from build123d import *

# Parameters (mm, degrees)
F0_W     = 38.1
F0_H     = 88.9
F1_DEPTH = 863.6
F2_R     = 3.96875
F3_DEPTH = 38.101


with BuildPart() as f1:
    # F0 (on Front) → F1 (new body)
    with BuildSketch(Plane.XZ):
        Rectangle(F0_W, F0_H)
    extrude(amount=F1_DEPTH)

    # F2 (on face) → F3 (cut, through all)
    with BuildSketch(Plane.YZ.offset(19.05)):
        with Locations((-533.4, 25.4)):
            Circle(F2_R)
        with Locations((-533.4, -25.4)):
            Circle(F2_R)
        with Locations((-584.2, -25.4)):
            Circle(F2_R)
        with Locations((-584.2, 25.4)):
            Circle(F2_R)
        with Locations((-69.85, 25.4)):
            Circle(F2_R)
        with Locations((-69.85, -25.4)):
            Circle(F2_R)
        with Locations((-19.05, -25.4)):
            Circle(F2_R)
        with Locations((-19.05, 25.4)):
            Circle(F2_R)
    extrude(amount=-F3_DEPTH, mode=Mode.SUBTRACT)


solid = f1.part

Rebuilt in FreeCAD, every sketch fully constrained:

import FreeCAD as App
import Part
import Sketcher
Q = App.Units.Quantity


def add_polygon(sketch, points):
    """Adds a closed chain of lines whose ends are joined by coincident constraints."""
    first, n = sketch.GeometryCount, len(points)
    for a, b in zip(points, points[1:] + points[:1]):
        sketch.addGeometry(Part.LineSegment(App.Vector(*a, 0), App.Vector(*b, 0)), False)
    for i in range(n):
        sketch.addConstraint(Sketcher.Constraint("Coincident", first + i, 2, first + (i + 1) % n, 1))

doc = App.newDocument("Part")
body = doc.addObject("PartDesign::Body", "Body")

sketch1 = body.newObject("Sketcher::SketchObject", "Sketch")
sketch1.AttachmentSupport = (doc.getObject("XZ_Plane"), [""])
sketch1.MapMode = "FlatFace"
add_polygon(sketch1, [(-19, 44), (-19, -44), (19, -44), (19, 44)])
sketch1.addConstraint([
    Sketcher.Constraint("Vertical", 0),
    Sketcher.Constraint("Horizontal", 1),
    Sketcher.Constraint("Vertical", 2),
    Sketcher.Constraint("Horizontal", 3),
    Sketcher.Constraint("Symmetric", 0, 2, 2, 2, -1, 1),
    Sketcher.Constraint("DistanceX", 1, 1, 1, 2, Q("1.5 in")),
    Sketcher.Constraint("DistanceY", 0, 2, 0, 1, Q("3.5 in")),
])
pad1 = body.newObject("PartDesign::Pad", "Pad")
pad1.Profile = sketch1
pad1.Length = Q("34 in")

sketch2 = body.newObject("Sketcher::SketchObject", "Sketch001")
sketch2.AttachmentSupport = (doc.getObject("YZ_Plane"), [""])
sketch2.MapMode = "FlatFace"
sketch2.AttachmentOffset = App.Placement(App.Vector(0, 0, 0.75 * 25.4), App.Rotation())
sketch2.addGeometry([
    Part.Circle(App.Vector(-533.4, 25.4, 0), App.Vector(0, 0, 1), 4),
    Part.Circle(App.Vector(-533.4, -25.4, 0), App.Vector(0, 0, 1), 4),
    Part.Circle(App.Vector(-584.2, -25.4, 0), App.Vector(0, 0, 1), 4),
    Part.Circle(App.Vector(-584.2, 25.4, 0), App.Vector(0, 0, 1), 4),
    Part.Circle(App.Vector(-69.8, 25.4, 0), App.Vector(0, 0, 1), 4),
    Part.Circle(App.Vector(-69.8, -25.4, 0), App.Vector(0, 0, 1), 4),
    Part.Circle(App.Vector(-19.1, -25.4, 0), App.Vector(0, 0, 1), 4),
    Part.Circle(App.Vector(-19.1, 25.4, 0), App.Vector(0, 0, 1), 4),
], False)
sketch2.addConstraint([
    Sketcher.Constraint("Equal", 0, 1),
    Sketcher.Constraint("Equal", 1, 2),
    Sketcher.Constraint("Equal", 2, 3),
    Sketcher.Constraint("Equal", 3, 4),
    Sketcher.Constraint("Equal", 4, 5),
    Sketcher.Constraint("Equal", 5, 6),
    Sketcher.Constraint("Equal", 6, 7),
    Sketcher.Constraint("Symmetric", 0, 3, 1, 3, -1),
    Sketcher.Constraint("Symmetric", 2, 3, 3, 3, -1),
    Sketcher.Constraint("Symmetric", 4, 3, 5, 3, -1),
    Sketcher.Constraint("Symmetric", 6, 3, 7, 3, -1),
    Sketcher.Constraint("Horizontal", 1, 3, 2, 3),
    Sketcher.Constraint("Horizontal", 3, 3, 4, 3),
    Sketcher.Constraint("Horizontal", 5, 3, 6, 3),
    Sketcher.Constraint("Diameter", 0, Q("0.3125 in")),
    Sketcher.Constraint("DistanceX", 0, 3, -1, 1, Q("21 in")),
    Sketcher.Constraint("DistanceY", -1, 1, 0, 3, Q("1 in")),
    Sketcher.Constraint("DistanceX", 2, 3, -1, 1, Q("23 in")),
    Sketcher.Constraint("DistanceX", 5, 3, 6, 3, Q("2 in")),
    Sketcher.Constraint("DistanceX", 4, 3, -1, 1, Q("2.75 in")),
])
pocket1 = body.newObject("PartDesign::Pocket", "Pocket")
pocket1.Profile = sketch2
pocket1.Type = "ThroughAll"

doc.recompute()
